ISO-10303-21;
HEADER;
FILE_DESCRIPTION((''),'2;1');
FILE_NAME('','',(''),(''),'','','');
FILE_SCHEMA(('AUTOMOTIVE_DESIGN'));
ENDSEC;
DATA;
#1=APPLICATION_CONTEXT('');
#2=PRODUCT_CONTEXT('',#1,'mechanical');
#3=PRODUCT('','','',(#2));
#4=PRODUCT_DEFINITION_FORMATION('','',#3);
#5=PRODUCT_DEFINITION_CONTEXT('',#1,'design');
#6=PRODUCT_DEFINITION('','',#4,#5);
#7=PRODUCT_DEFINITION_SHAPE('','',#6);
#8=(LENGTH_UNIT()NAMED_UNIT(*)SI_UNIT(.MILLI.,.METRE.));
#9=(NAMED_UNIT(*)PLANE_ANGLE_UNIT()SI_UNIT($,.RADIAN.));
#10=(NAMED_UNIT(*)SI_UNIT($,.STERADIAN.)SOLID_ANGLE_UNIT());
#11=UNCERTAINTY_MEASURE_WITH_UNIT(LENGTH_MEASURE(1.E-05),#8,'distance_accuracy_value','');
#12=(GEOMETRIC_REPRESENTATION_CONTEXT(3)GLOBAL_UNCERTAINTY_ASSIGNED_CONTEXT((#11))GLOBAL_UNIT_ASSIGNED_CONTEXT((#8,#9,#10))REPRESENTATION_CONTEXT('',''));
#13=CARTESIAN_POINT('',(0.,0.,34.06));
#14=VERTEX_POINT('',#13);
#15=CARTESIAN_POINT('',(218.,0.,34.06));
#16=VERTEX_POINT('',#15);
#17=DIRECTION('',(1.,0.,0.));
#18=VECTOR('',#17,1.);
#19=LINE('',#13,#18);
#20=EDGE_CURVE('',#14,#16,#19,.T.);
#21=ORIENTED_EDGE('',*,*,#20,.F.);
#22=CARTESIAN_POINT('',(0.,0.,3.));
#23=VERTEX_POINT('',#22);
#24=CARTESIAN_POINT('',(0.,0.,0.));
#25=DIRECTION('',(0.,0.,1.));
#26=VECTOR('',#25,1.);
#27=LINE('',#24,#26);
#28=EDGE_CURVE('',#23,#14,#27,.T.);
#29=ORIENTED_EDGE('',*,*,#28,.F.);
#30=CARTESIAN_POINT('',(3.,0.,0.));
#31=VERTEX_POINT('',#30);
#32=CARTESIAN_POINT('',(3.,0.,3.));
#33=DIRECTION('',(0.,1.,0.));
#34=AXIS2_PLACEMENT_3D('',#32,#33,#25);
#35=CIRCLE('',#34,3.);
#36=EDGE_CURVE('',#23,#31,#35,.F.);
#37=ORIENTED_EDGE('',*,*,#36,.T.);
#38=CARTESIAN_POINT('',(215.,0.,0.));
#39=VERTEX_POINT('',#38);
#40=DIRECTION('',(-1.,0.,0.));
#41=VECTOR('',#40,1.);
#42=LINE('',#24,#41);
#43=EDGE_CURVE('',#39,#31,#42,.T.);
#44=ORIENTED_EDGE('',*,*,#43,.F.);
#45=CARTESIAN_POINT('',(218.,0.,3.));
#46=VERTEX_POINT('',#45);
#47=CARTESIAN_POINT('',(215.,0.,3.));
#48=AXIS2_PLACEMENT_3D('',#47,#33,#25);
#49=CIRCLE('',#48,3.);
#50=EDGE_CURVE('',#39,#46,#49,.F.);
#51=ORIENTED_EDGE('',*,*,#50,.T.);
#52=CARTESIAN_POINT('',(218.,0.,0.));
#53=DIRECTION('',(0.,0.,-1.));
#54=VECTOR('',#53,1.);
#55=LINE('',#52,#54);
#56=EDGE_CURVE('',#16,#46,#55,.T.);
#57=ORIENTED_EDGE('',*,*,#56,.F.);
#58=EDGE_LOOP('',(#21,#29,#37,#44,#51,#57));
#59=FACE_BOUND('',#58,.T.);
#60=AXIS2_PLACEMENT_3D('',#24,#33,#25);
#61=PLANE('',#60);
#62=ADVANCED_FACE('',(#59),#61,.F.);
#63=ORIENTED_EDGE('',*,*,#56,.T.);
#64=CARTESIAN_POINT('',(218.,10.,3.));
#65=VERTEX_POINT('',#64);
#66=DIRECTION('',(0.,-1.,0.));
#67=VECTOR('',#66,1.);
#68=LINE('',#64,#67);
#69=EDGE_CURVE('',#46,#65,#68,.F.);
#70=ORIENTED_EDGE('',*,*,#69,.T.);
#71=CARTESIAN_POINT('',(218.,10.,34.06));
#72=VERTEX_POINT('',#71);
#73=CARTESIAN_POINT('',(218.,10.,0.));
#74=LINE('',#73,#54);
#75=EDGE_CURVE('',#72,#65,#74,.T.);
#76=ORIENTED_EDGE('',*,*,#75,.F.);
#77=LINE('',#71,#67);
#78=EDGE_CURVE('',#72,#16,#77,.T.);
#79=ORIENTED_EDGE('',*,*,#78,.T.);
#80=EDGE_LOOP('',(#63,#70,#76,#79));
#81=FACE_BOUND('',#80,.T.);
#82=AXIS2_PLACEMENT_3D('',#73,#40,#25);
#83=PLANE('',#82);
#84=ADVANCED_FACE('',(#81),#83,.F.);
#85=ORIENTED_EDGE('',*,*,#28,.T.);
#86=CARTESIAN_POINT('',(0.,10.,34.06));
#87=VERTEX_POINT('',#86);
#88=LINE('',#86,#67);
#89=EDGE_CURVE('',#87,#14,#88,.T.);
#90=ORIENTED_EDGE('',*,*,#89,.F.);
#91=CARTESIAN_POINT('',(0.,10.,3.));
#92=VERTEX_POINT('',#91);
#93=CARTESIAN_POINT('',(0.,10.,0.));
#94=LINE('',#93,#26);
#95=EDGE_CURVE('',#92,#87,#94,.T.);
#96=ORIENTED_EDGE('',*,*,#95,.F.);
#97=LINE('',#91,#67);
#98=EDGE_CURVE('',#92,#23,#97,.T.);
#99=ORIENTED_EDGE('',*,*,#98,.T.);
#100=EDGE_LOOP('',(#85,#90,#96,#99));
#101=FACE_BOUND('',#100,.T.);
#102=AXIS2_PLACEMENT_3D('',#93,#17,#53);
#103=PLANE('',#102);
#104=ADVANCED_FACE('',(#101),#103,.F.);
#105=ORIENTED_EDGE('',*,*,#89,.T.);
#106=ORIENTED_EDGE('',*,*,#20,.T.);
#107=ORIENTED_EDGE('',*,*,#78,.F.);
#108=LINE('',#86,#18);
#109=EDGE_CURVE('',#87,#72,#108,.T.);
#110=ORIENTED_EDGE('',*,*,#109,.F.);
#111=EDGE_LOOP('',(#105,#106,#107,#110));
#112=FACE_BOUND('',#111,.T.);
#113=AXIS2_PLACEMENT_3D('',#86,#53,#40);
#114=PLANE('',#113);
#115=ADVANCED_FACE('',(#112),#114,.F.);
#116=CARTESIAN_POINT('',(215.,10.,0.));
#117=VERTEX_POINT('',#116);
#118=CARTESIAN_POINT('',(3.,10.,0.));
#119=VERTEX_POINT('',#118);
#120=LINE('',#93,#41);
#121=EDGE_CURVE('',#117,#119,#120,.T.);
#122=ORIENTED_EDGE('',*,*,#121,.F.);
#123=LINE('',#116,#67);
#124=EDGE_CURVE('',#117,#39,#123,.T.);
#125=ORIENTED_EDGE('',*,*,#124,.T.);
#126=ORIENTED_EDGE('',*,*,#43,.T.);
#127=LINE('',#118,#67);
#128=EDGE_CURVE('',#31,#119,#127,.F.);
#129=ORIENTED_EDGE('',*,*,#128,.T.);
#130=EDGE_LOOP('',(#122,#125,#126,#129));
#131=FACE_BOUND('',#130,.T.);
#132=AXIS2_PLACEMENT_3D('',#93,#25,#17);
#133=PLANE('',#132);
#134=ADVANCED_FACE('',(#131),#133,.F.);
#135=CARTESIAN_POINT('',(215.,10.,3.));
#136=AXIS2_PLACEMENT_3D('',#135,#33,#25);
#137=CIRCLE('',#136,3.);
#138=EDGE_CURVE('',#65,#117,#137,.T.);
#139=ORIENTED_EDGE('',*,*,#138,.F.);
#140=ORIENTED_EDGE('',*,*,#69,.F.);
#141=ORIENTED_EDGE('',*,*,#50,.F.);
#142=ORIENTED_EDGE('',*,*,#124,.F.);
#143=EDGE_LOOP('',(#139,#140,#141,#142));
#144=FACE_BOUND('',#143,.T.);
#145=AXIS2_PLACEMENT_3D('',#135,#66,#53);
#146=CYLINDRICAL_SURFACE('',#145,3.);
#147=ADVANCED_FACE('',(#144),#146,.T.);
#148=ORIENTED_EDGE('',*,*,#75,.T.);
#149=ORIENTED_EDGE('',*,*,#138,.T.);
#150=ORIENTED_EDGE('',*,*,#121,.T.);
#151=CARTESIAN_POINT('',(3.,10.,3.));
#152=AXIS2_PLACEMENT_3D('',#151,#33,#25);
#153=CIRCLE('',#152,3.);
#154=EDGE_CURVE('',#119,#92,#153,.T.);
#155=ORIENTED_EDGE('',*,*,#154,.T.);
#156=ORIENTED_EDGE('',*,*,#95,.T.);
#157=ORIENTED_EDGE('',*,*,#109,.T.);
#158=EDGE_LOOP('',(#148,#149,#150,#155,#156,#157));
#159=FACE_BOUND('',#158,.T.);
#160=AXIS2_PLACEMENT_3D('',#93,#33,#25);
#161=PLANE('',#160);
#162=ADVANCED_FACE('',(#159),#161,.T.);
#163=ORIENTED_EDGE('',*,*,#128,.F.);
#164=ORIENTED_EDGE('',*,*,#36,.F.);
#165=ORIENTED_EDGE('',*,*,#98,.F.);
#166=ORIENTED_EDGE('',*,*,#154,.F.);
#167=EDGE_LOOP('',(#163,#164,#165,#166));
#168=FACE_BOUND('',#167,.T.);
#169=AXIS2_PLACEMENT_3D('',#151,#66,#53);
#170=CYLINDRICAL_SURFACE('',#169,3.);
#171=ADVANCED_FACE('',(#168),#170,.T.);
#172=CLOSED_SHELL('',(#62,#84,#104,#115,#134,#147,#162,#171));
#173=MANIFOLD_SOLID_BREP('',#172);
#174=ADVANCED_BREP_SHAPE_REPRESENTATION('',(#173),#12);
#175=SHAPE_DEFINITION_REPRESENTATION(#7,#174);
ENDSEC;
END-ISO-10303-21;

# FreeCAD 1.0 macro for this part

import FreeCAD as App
import Part
import Sketcher


def edges_at(feature, points):
    """Names of the edges that pass closest to the given points."""
    edges = feature.Shape.Edges
    near = lambda p: min(range(len(edges)), key=lambda i: edges[i].distToShape(Part.Vertex(*p))[0])
    return sorted({f"Edge{near(p) + 1}" for p in points})

doc = App.newDocument("Part")
params = doc.addObject("Spreadsheet::Sheet", "Params")
for row, (alias, value) in enumerate([
    ("sketch1_width", "218 mm"),
    ("sketch1_height", "34.06 mm"),
    ("pad1_length", "10 mm"),
    ("fillet_radius", "3 mm"),
], start=1):
    params.set(f"A{row}", alias)
    params.set(f"B{row}", "=" + value)
    params.setAlias(f"B{row}", alias)

body = doc.addObject("PartDesign::Body", "Body")

sketch1 = doc.addObject("Sketcher::SketchObject", "Sketch")
body.addObject(sketch1)
sketch1.AttachmentSupport = (doc.XZ_Plane, [""])
sketch1.MapMode = "FlatFace"
sketch1.addGeometry([
    Part.LineSegment(App.Vector(0, 0, 0), App.Vector(0, 34.06, 0)),
    Part.LineSegment(App.Vector(0, 34.06, 0), App.Vector(218, 34.06, 0)),
    Part.LineSegment(App.Vector(218, 34.06, 0), App.Vector(218, 0, 0)),
    Part.LineSegment(App.Vector(218, 0, 0), App.Vector(0, 0, 0)),
], False)
sketch1.addConstraint([
    Sketcher.Constraint("Coincident", 0, 2, 1, 1),
    Sketcher.Constraint("Coincident", 1, 2, 2, 1),
    Sketcher.Constraint("Coincident", 2, 2, 3, 1),
    Sketcher.Constraint("Coincident", 3, 2, 0, 1),
    Sketcher.Constraint("Vertical", 0),
    Sketcher.Constraint("Horizontal", 1),
    Sketcher.Constraint("Vertical", 2),
    Sketcher.Constraint("Horizontal", 3),
    Sketcher.Constraint("Coincident", 3, 2, -1, 1),
    Sketcher.Constraint("DistanceX", 1, 1, 1, 2, 218.0),
    Sketcher.Constraint("DistanceY", 0, 1, 0, 2, 34.06),
])
sketch1.setExpression("Constraints[9]", "Params.sketch1_width")
sketch1.setExpression("Constraints[10]", "Params.sketch1_height")
pad1 = doc.addObject("PartDesign::Pad", "Pad")
body.addObject(pad1)
pad1.Profile = sketch1
pad1.setExpression("Length", "Params.pad1_length")
pad1.Reversed = True
doc.recompute()

fillet = doc.addObject("PartDesign::Fillet", "Fillet")
body.addObject(fillet)
fillet.Base = (pad1, edges_at(pad1, [(0, 5, 0), (218, 5, 0)]))
fillet.setExpression("Radius", "Params.fillet_radius")

doc.recompute()
